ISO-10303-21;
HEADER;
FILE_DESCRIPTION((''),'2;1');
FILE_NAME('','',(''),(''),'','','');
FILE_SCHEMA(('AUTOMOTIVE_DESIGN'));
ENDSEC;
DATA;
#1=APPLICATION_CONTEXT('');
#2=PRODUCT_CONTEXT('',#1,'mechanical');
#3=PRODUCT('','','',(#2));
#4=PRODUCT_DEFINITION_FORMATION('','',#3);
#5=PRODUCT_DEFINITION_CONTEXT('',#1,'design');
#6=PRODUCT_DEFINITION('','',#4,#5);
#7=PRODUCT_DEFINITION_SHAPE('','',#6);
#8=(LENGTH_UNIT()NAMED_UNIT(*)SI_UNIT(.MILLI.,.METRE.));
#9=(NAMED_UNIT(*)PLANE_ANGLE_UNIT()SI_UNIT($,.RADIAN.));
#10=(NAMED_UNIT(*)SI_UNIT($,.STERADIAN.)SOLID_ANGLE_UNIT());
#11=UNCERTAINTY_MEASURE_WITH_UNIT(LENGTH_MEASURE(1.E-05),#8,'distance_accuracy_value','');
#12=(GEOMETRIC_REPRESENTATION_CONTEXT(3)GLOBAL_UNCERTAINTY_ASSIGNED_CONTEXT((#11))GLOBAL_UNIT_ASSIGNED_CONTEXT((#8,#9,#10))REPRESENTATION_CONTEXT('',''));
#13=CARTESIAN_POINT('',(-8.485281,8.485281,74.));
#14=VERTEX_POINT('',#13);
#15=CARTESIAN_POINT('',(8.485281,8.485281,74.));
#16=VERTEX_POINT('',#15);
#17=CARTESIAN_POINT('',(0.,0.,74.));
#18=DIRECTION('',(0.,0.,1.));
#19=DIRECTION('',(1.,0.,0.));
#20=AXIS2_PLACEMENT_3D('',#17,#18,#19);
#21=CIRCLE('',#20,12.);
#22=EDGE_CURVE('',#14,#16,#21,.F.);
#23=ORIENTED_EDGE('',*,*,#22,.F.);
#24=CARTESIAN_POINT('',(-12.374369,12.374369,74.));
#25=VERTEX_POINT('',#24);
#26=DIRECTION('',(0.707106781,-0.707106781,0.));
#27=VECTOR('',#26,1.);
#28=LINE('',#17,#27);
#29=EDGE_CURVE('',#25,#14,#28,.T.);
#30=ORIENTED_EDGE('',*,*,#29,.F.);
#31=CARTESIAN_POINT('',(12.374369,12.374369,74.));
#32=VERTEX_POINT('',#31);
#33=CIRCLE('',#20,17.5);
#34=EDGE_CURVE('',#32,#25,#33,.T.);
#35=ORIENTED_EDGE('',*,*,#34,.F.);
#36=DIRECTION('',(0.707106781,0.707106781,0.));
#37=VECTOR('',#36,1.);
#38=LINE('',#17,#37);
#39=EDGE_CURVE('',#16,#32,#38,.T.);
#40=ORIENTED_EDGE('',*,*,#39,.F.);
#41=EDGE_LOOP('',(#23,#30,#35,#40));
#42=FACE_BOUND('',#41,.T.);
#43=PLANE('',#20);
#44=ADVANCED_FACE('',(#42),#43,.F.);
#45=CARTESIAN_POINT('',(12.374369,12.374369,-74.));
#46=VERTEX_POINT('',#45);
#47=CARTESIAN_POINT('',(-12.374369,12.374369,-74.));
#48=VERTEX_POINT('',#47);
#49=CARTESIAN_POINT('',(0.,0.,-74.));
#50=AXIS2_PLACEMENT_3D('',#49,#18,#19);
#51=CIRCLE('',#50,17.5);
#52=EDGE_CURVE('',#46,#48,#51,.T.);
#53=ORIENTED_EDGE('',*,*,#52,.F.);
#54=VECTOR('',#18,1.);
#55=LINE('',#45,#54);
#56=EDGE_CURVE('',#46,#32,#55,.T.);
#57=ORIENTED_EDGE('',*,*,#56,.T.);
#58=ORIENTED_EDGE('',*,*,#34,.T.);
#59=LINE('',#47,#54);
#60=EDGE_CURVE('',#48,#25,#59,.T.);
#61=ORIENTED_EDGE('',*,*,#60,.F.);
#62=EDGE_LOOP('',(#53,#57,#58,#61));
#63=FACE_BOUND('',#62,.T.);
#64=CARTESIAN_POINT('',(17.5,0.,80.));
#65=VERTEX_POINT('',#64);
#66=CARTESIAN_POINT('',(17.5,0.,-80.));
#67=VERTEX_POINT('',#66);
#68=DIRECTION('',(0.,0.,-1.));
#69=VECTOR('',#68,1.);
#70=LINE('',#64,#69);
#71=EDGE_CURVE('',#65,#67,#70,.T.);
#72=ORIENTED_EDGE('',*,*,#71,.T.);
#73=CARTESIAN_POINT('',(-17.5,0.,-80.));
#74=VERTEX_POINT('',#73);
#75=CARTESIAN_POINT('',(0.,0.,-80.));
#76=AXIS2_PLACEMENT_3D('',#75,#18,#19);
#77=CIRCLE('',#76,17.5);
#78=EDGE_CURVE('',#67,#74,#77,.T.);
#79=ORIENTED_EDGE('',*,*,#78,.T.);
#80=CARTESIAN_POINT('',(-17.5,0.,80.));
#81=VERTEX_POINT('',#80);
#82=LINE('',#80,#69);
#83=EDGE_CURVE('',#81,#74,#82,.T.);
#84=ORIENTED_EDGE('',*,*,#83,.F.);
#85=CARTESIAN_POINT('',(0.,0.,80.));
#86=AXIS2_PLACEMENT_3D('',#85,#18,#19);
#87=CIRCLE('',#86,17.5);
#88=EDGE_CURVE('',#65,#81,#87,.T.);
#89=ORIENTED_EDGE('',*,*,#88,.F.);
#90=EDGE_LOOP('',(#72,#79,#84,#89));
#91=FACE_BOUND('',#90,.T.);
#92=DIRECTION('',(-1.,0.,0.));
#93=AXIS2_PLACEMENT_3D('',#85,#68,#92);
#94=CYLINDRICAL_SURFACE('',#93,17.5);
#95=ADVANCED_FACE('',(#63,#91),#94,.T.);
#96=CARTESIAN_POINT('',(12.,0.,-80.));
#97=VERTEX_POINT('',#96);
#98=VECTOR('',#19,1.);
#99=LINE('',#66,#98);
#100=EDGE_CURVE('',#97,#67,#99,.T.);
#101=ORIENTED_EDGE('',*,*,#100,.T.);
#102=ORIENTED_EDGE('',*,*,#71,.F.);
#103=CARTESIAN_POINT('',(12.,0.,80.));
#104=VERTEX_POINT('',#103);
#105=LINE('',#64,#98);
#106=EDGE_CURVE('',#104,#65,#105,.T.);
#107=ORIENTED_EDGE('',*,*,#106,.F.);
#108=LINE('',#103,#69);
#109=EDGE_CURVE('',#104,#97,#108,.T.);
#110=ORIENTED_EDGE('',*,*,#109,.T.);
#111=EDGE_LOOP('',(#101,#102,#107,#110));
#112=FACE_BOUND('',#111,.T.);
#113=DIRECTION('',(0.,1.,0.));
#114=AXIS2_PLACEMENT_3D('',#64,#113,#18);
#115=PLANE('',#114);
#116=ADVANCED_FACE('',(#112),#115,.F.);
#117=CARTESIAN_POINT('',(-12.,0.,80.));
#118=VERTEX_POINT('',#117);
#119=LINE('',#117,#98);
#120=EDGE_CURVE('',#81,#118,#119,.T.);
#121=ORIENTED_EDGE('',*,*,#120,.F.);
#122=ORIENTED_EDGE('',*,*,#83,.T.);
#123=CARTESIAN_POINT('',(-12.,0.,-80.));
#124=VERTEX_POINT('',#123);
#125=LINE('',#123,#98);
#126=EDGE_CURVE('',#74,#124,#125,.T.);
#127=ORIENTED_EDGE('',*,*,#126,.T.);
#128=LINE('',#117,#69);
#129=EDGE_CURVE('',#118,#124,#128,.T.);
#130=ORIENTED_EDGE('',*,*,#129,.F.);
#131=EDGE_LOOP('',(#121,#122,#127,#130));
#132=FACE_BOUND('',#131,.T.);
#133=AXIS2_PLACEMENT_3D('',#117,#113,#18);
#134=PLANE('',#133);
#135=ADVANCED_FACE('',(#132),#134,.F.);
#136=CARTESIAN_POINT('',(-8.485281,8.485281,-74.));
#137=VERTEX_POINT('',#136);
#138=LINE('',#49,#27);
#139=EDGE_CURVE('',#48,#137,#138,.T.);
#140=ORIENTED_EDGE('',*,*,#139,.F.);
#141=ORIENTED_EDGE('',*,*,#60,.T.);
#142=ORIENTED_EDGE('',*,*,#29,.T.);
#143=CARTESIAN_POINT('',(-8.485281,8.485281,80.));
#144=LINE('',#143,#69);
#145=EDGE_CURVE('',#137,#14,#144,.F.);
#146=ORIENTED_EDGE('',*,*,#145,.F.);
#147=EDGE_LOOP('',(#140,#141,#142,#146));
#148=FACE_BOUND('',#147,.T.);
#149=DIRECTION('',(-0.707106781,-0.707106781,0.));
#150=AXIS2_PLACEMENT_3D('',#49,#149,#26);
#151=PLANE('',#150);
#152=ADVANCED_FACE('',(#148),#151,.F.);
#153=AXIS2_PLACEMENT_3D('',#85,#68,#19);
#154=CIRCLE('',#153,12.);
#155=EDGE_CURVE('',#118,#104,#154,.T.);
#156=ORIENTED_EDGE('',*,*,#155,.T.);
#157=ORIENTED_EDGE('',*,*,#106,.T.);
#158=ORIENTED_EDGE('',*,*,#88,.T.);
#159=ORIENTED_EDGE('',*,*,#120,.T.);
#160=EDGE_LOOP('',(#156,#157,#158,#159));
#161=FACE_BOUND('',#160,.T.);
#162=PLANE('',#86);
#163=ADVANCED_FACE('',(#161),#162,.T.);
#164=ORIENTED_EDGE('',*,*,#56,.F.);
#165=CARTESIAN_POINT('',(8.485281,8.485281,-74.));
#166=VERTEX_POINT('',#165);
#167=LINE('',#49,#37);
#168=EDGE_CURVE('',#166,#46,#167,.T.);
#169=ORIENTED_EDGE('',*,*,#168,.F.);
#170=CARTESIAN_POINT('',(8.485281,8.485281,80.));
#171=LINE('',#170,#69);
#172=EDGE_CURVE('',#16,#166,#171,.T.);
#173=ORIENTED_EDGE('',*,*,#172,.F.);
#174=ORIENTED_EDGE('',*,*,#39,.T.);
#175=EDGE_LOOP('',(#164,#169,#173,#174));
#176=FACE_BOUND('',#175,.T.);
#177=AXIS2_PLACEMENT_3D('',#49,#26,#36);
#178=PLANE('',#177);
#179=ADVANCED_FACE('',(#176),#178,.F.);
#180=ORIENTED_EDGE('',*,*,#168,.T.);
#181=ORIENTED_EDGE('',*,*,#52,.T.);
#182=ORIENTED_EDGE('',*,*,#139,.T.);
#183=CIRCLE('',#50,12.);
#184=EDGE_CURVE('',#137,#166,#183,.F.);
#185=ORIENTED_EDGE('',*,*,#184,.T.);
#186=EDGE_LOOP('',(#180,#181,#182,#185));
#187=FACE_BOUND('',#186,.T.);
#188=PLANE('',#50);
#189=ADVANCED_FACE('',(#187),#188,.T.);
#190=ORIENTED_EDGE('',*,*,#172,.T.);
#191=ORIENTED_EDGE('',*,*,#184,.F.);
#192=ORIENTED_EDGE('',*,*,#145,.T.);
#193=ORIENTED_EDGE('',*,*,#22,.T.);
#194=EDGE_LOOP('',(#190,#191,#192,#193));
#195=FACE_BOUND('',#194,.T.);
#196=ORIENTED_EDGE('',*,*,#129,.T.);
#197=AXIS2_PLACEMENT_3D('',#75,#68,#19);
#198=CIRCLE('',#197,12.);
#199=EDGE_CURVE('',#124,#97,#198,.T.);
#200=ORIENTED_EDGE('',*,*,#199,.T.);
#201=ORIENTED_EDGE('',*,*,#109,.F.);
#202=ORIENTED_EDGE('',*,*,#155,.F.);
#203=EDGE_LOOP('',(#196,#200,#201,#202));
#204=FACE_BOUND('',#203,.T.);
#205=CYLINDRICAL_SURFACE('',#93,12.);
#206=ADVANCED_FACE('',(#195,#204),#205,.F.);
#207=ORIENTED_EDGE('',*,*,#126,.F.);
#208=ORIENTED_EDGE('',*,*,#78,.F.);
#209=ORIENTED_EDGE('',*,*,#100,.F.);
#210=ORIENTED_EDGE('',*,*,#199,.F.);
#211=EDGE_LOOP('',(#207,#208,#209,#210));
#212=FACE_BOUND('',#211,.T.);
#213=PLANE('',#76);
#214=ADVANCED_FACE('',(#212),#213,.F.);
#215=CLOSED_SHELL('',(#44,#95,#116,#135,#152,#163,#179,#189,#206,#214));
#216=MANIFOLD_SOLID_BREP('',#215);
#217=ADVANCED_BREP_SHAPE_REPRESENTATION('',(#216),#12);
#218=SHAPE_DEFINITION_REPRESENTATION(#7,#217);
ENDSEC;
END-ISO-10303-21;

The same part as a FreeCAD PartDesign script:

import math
import FreeCAD as App
import Part
import Sketcher
from FreeCAD import Vector

doc = App.newDocument("Part")
body = doc.addObject("PartDesign::Body", "Body")

# Sketch on XY plane
sketch1 = body.newObject("Sketcher::SketchObject", "Sketch")
sketch1.AttachmentSupport = (doc.getObject("XY_Plane"), [""])
sketch1.MapMode = "FlatFace"
sketch1.addGeometry(Part.LineSegment(Vector(12, 0, 0), Vector(18, 0, 0)), False)
sketch1.addGeometry(Part.ArcOfCircle(Part.Circle(Vector(0, 0, 0), Vector(0, 0, 1), 18), math.radians(0), math.radians(180)), False)
sketch1.addGeometry(Part.LineSegment(Vector(-18, 0, 0), Vector(-12, 0, 0)), False)
sketch1.addGeometry(Part.ArcOfCircle(Part.Circle(Vector(0, 0, 0), Vector(0, 0, 1), 12), math.radians(0), math.radians(180)), False)
sketch1.addConstraint(Sketcher.Constraint("Coincident", 0, 2, 1, 1))
sketch1.addConstraint(Sketcher.Constraint("Coincident", 1, 2, 2, 1))
sketch1.addConstraint(Sketcher.Constraint("Coincident", 2, 2, 3, 2))
sketch1.addConstraint(Sketcher.Constraint("Coincident", 3, 1, 0, 1))
sketch1.addConstraint(Sketcher.Constraint("Horizontal", 0))
sketch1.addConstraint(Sketcher.Constraint("Horizontal", 2))
sketch1.addConstraint(Sketcher.Constraint("Coincident", 1, 3, -1, 1))
sketch1.addConstraint(Sketcher.Constraint("Coincident", 3, 3, -1, 1))
sketch1.addConstraint(Sketcher.Constraint("PointOnObject", 0, 2, -1))
sketch1.addConstraint(Sketcher.Constraint("PointOnObject", 1, 2, -1))
sketch1.addConstraint(Sketcher.Constraint("Radius", 3, 12.0))
sketch1.addConstraint(Sketcher.Constraint("Radius", 1, 17.5))
pad1 = body.newObject("PartDesign::Pad", "Pad")
pad1.Profile = sketch1
pad1.Length = 160
pad1.Midplane = True

# Sketch on XY plane
sketch2 = body.newObject("Sketcher::SketchObject", "Sketch001")
sketch2.AttachmentSupport = (doc.getObject("XY_Plane"), [""])
sketch2.MapMode = "FlatFace"
sketch2.addGeometry(Part.LineSegment(Vector(0, 0, 0), Vector(12, 12, 0)), False)
sketch2.addGeometry(Part.ArcOfCircle(Part.Circle(Vector(0, 0, 0), Vector(0, 0, 1), 18), math.radians(45), math.radians(135)), False)
sketch2.addGeometry(Part.LineSegment(Vector(-12, 12, 0), Vector(0, 0, 0)), False)
sketch2.addConstraint(Sketcher.Constraint("Coincident", 0, 2, 1, 1))
sketch2.addConstraint(Sketcher.Constraint("Coincident", 1, 2, 2, 1))
sketch2.addConstraint(Sketcher.Constraint("Coincident", 2, 2, 0, 1))
sketch2.addConstraint(Sketcher.Constraint("Coincident", 1, 3, -1, 1))
sketch2.addConstraint(Sketcher.Constraint("Coincident", 2, 2, -1, 1))
sketch2.addConstraint(Sketcher.Constraint("Perpendicular", 0, 2))
sketch2.addConstraint(Sketcher.Constraint("Horizontal", 0, 2, 1, 2))
sketch2.addConstraint(Sketcher.Constraint("Radius", 1, 17.5))
pocket1 = body.newObject("PartDesign::Pocket", "Pocket")
pocket1.Profile = sketch2
pocket1.Length = 148
pocket1.Midplane = True

doc.recompute()
